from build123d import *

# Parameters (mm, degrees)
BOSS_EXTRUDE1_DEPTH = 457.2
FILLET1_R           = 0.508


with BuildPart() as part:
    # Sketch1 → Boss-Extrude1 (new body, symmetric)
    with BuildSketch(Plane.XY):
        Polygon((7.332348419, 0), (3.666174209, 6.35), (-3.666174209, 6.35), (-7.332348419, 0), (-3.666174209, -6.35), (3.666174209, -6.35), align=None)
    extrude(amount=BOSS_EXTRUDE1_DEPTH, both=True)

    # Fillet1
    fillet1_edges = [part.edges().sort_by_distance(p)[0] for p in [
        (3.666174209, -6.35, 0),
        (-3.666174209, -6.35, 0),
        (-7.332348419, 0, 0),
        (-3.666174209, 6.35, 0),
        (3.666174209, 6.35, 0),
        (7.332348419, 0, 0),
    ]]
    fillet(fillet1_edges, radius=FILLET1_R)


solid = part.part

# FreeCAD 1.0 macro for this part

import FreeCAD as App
import Part
import Sketcher
Q = App.Units.Quantity


def edges_at(feature, points):
    """Names of the edges that pass closest to the given points."""
    edges = feature.Shape.Edges
    near = lambda p: min(range(len(edges)), key=lambda i: edges[i].distToShape(Part.Vertex(*p))[0])
    return sorted({f"Edge{near(p) + 1}" for p in points})

doc = App.newDocument("Part")
body = doc.addObject("PartDesign::Body", "Body")

# Sketch on XY plane
sketch1 = body.newObject("Sketcher::SketchObject", "Sketch")
sketch1.AttachmentSupport = (doc.getObject("XY_Plane"), [""])
sketch1.MapMode = "FlatFace"
sketch1.addGeometry(Part.LineSegment(App.Vector(7.332348, 0, 0), App.Vector(3.666174, 6.35, 0)), False)
sketch1.addGeometry(Part.LineSegment(App.Vector(3.666174, 6.35, 0), App.Vector(-3.666174, 6.35, 0)), False)
sketch1.addGeometry(Part.LineSegment(App.Vector(-3.666174, 6.35, 0), App.Vector(-7.332348, 0, 0)), False)
sketch1.addGeometry(Part.LineSegment(App.Vector(-7.332348, 0, 0), App.Vector(-3.666174, -6.35, 0)), False)
sketch1.addGeometry(Part.LineSegment(App.Vector(-3.666174, -6.35, 0), App.Vector(3.666174, -6.35, 0)), False)
sketch1.addGeometry(Part.LineSegment(App.Vector(3.666174, -6.35, 0), App.Vector(7.332348, 0, 0)), False)
sketch1.addConstraint(Sketcher.Constraint("Coincident", 0, 2, 1, 1))
sketch1.addConstraint(Sketcher.Constraint("Coincident", 1, 2, 2, 1))
sketch1.addConstraint(Sketcher.Constraint("Coincident", 2, 2, 3, 1))
sketch1.addConstraint(Sketcher.Constraint("Coincident", 3, 2, 4, 1))
sketch1.addConstraint(Sketcher.Constraint("Coincident", 4, 2, 5, 1))
sketch1.addConstraint(Sketcher.Constraint("Coincident", 5, 2, 0, 1))
sketch1.addConstraint(Sketcher.Constraint("Horizontal", 1))
sketch1.addConstraint(Sketcher.Constraint("Horizontal", 4))
sketch1.addConstraint(Sketcher.Constraint("Symmetric", 0, 2, 3, 2, -1, 1))
sketch1.addConstraint(Sketcher.Constraint("Symmetric", 2, 2, 5, 2, -1, 1))
sketch1.addConstraint(Sketcher.Constraint("PointOnObject", 2, 2, -1))
sketch1.addConstraint(Sketcher.Constraint("Parallel", 2, 5))
sketch1.addConstraint(Sketcher.Constraint("Vertical", 1, 2, 3, 2))
sketch1.addConstraint(Sketcher.Constraint("Angle", 0, Q("120 deg")))
sketch1.addConstraint(Sketcher.Constraint("DistanceY", 3, 2, 1, 2, Q("0.5 in")))
sketch1.addConstraint(Sketcher.Constraint("DistanceX", 1, 2, 1, 1, 7.332348))
pad1 = body.newObject("PartDesign::Pad", "Pad")
pad1.Profile = sketch1
pad1.Length = Q("36 in")
pad1.Midplane = True
doc.recompute()

fillet = body.newObject("PartDesign::Fillet", "Fillet")
fillet.Base = (pad1, edges_at(pad1, [
    (3.666, -6.35, 0),
    (-3.666, -6.35, 0),
    (-7.332, 0, 0),
    (-3.666, 6.35, 0),
    (3.666, 6.35, 0),
    (7.332, 0, 0),
]))
fillet.Radius = Q("0.02 in")

doc.recompute()
